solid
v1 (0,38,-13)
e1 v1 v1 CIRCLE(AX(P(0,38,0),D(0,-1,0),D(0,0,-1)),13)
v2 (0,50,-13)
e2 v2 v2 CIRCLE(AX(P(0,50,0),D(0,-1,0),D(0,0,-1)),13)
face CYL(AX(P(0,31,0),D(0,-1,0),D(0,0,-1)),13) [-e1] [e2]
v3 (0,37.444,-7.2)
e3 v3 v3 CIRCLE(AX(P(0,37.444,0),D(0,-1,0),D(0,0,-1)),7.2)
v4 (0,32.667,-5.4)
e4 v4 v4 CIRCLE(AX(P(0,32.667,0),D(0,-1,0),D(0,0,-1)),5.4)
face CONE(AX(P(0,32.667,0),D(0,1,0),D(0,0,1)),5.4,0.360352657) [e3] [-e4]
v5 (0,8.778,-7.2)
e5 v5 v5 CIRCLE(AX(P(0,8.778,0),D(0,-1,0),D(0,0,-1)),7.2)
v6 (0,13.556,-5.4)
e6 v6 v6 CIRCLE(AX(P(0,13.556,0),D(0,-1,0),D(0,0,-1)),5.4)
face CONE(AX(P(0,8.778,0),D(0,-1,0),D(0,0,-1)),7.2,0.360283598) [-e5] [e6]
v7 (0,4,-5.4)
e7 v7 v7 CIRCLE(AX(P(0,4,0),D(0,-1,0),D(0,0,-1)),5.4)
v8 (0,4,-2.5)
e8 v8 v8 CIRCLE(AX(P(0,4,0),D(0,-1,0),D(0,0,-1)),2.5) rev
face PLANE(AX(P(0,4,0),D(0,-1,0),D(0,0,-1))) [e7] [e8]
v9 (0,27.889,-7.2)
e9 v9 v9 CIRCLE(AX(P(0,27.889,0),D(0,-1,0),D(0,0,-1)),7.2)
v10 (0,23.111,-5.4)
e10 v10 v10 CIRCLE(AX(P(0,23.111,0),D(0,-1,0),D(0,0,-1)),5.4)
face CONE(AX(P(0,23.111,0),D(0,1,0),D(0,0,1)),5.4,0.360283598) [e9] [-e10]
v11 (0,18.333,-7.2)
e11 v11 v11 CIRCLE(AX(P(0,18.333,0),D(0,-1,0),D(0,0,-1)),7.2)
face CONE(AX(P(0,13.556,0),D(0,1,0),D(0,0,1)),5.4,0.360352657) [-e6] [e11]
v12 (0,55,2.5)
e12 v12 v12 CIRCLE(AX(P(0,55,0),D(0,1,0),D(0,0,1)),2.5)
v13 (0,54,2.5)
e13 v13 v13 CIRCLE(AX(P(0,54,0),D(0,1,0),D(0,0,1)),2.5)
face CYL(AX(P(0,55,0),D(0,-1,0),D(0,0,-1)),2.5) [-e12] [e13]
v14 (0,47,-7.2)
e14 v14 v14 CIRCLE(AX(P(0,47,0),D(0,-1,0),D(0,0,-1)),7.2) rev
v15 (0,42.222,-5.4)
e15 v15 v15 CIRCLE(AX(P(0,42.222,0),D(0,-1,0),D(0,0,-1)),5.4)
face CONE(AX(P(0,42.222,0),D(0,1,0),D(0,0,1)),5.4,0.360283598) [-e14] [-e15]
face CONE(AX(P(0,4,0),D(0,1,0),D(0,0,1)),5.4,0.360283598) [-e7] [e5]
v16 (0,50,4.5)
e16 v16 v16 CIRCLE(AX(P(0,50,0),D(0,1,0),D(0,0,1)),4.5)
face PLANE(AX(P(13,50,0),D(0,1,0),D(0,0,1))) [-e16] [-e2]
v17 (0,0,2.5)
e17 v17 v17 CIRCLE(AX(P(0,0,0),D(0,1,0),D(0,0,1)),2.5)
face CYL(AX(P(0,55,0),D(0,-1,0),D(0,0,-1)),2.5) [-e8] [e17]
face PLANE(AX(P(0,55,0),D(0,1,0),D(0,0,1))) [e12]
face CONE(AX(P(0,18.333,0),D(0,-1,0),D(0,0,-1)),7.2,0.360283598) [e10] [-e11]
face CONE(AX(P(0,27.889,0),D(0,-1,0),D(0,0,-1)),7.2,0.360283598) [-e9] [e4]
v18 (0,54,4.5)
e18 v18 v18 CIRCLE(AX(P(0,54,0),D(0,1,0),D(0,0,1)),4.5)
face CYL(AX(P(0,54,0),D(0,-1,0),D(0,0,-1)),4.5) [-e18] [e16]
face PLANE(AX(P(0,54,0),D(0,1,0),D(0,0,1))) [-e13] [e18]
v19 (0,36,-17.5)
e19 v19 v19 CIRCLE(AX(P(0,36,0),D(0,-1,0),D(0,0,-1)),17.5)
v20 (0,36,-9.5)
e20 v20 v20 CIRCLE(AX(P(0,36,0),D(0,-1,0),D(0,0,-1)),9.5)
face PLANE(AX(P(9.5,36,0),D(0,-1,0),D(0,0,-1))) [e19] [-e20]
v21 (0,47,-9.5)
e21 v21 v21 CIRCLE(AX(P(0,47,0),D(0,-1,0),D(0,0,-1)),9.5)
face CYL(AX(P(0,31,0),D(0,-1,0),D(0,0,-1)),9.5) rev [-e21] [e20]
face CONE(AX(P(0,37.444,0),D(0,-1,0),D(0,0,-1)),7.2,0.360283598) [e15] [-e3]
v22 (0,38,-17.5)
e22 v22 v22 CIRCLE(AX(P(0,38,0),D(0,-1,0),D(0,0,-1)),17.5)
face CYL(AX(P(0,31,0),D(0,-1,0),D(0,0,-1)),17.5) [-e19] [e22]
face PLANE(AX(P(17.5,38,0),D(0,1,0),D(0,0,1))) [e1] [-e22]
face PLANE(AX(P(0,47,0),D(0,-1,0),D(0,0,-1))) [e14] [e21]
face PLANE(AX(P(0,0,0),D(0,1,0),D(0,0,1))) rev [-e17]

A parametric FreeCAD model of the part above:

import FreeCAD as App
import Part
import Sketcher

V = App.Vector


def add_polygon(sketch, points):
    """Adds a closed chain of lines whose ends are joined by coincident constraints."""
    first, n = sketch.GeometryCount, len(points)
    for a, b in zip(points, points[1:] + points[:1]):
        sketch.addGeometry(Part.LineSegment(App.Vector(*a, 0), App.Vector(*b, 0)), False)
    for i in range(n):
        sketch.addConstraint(Sketcher.Constraint("Coincident", first + i, 2, first + (i + 1) % n, 1))

doc = App.newDocument("Part")
body = doc.addObject("PartDesign::Body", "Body")

sketch1 = body.newObject("Sketcher::SketchObject", "Sketch")
sketch1.AttachmentSupport = (doc.getObject("XY_Plane"), [""])
sketch1.MapMode = "FlatFace"
add_polygon(sketch1, [(0, 4), (5, 4), (7, 9), (5, 14), (7, 18), (5, 23), (7, 28), (5, 33), (7, 37), (5, 42), (7, 47), (0, 47)])
sketch1.addConstraint(Sketcher.Constraint("Horizontal", 0))
sketch1.addConstraint(Sketcher.Constraint("Horizontal", 10))
sketch1.addConstraint(Sketcher.Constraint("Vertical", 11))
sketch1.addConstraint(Sketcher.Constraint("PointOnObject", 10, 2, -2))
sketch1.addConstraint(Sketcher.Constraint("Parallel", 2, 4))
sketch1.addConstraint(Sketcher.Constraint("Parallel", 1, 5))
sketch1.addConstraint(Sketcher.Constraint("Parallel", 4, 6))
sketch1.addConstraint(Sketcher.Constraint("Parallel", 3, 7))
sketch1.addConstraint(Sketcher.Constraint("Parallel", 6, 8))
sketch1.addConstraint(Sketcher.Constraint("Parallel", 5, 9))
sketch1.addConstraint(Sketcher.Constraint("Vertical", 0, 2, 2, 2))
sketch1.addConstraint(Sketcher.Constraint("Vertical", 1, 2, 3, 2))
sketch1.addConstraint(Sketcher.Constraint("Vertical", 2, 2, 4, 2))
sketch1.addConstraint(Sketcher.Constraint("Vertical", 3, 2, 5, 2))
sketch1.addConstraint(Sketcher.Constraint("Vertical", 4, 2, 6, 2))
sketch1.addConstraint(Sketcher.Constraint("Vertical", 5, 2, 7, 2))
sketch1.addConstraint(Sketcher.Constraint("Vertical", 6, 2, 8, 2))
sketch1.addConstraint(Sketcher.Constraint("Vertical", 7, 2, 9, 2))
sketch1.addConstraint(Sketcher.Constraint("Equal", 1, 2))
sketch1.addConstraint(Sketcher.Constraint("DistanceY", 11, 2, 11, 1, 43.0))
sketch1.addConstraint(Sketcher.Constraint("DistanceX", 0, 1, 0, 2, 5.4))
sketch1.addConstraint(Sketcher.Constraint("DistanceX", 10, 2, 10, 1, 7.2))
sketch1.addConstraint(Sketcher.Constraint("DistanceY", -1, 1, 0, 2, 4.0))
sketch1.addConstraint(Sketcher.Constraint("DistanceY", -1, 1, 1, 2, 8.778))
revolution = body.newObject("PartDesign::Revolution", "Revolution")
revolution.Profile = sketch1
revolution.ReferenceAxis = (sketch1, ["V_Axis"])
revolution.Angle = 360

sketch2 = body.newObject("Sketcher::SketchObject", "Sketch001")
sketch2.AttachmentSupport = (doc.getObject("XZ_Plane"), [""])
sketch2.MapMode = "FlatFace"
sketch2.addGeometry(Part.Circle(V(0, 0, 0), V(0, 0, 1), 2.5), False)
sketch2.addConstraint(Sketcher.Constraint("Coincident", 0, 3, -1, 1))
sketch2.addConstraint(Sketcher.Constraint("Diameter", 0, 5.0))
pad1 = body.newObject("PartDesign::Pad", "Pad")
pad1.Profile = sketch2
pad1.Length = 55
pad1.Reversed = True

sketch3 = body.newObject("Sketcher::SketchObject", "Sketch002")
sketch3.AttachmentSupport = (doc.getObject("XY_Plane"), [""])
sketch3.MapMode = "FlatFace"
add_polygon(sketch3, [(9.5, 36), (17.5, 36), (17.5, 38), (13, 38), (13, 50), (0, 50), (0, 47), (9.5, 47)])
sketch3.addConstraint(Sketcher.Constraint("Horizontal", 0))
sketch3.addConstraint(Sketcher.Constraint("Vertical", 1))
sketch3.addConstraint(Sketcher.Constraint("Horizontal", 2))
sketch3.addConstraint(Sketcher.Constraint("Vertical", 3))
sketch3.addConstraint(Sketcher.Constraint("Horizontal", 4))
sketch3.addConstraint(Sketcher.Constraint("Vertical", 5))
sketch3.addConstraint(Sketcher.Constraint("Horizontal", 6))
sketch3.addConstraint(Sketcher.Constraint("Vertical", 7))
sketch3.addConstraint(Sketcher.Constraint("PointOnObject", 4, 2, -2))
sketch3.addConstraint(Sketcher.Constraint("DistanceX", 0, 1, 0, 2, 8.0))
sketch3.addConstraint(Sketcher.Constraint("DistanceX", 4, 2, 4, 1, 13.0))
sketch3.addConstraint(Sketcher.Constraint("DistanceY", 1, 1, 1, 2, 2.0))
sketch3.addConstraint(Sketcher.Constraint("DistanceY", 3, 1, 3, 2, 12.0))
sketch3.addConstraint(Sketcher.Constraint("DistanceY", 5, 2, 5, 1, 3.0))
sketch3.addConstraint(Sketcher.Constraint("DistanceX", 2, 2, 2, 1, 4.5))
sketch3.addConstraint(Sketcher.Constraint("DistanceY", -1, 1, 0, 2, 36.0))
revolution2 = body.newObject("PartDesign::Revolution", "Revolution001")
revolution2.Profile = sketch3
revolution2.ReferenceAxis = (sketch3, ["V_Axis"])
revolution2.Angle = 360

sketch4 = body.newObject("Sketcher::SketchObject", "Sketch003")
sketch4.AttachmentSupport = (doc.getObject("XZ_Plane"), [""])
sketch4.MapMode = "FlatFace"
sketch4.AttachmentOffset = App.Placement(V(0, 0, -50), App.Rotation())
sketch4.addGeometry(Part.Circle(V(0, 0, 0), V(0, 0, 1), 4.5), False)
sketch4.addConstraint(Sketcher.Constraint("Coincident", 0, 3, -1, 1))
sketch4.addConstraint(Sketcher.Constraint("Diameter", 0, 9.0))
pad2 = body.newObject("PartDesign::Pad", "Pad001")
pad2.Profile = sketch4
pad2.Length = 4
pad2.Reversed = True

doc.recompute()
